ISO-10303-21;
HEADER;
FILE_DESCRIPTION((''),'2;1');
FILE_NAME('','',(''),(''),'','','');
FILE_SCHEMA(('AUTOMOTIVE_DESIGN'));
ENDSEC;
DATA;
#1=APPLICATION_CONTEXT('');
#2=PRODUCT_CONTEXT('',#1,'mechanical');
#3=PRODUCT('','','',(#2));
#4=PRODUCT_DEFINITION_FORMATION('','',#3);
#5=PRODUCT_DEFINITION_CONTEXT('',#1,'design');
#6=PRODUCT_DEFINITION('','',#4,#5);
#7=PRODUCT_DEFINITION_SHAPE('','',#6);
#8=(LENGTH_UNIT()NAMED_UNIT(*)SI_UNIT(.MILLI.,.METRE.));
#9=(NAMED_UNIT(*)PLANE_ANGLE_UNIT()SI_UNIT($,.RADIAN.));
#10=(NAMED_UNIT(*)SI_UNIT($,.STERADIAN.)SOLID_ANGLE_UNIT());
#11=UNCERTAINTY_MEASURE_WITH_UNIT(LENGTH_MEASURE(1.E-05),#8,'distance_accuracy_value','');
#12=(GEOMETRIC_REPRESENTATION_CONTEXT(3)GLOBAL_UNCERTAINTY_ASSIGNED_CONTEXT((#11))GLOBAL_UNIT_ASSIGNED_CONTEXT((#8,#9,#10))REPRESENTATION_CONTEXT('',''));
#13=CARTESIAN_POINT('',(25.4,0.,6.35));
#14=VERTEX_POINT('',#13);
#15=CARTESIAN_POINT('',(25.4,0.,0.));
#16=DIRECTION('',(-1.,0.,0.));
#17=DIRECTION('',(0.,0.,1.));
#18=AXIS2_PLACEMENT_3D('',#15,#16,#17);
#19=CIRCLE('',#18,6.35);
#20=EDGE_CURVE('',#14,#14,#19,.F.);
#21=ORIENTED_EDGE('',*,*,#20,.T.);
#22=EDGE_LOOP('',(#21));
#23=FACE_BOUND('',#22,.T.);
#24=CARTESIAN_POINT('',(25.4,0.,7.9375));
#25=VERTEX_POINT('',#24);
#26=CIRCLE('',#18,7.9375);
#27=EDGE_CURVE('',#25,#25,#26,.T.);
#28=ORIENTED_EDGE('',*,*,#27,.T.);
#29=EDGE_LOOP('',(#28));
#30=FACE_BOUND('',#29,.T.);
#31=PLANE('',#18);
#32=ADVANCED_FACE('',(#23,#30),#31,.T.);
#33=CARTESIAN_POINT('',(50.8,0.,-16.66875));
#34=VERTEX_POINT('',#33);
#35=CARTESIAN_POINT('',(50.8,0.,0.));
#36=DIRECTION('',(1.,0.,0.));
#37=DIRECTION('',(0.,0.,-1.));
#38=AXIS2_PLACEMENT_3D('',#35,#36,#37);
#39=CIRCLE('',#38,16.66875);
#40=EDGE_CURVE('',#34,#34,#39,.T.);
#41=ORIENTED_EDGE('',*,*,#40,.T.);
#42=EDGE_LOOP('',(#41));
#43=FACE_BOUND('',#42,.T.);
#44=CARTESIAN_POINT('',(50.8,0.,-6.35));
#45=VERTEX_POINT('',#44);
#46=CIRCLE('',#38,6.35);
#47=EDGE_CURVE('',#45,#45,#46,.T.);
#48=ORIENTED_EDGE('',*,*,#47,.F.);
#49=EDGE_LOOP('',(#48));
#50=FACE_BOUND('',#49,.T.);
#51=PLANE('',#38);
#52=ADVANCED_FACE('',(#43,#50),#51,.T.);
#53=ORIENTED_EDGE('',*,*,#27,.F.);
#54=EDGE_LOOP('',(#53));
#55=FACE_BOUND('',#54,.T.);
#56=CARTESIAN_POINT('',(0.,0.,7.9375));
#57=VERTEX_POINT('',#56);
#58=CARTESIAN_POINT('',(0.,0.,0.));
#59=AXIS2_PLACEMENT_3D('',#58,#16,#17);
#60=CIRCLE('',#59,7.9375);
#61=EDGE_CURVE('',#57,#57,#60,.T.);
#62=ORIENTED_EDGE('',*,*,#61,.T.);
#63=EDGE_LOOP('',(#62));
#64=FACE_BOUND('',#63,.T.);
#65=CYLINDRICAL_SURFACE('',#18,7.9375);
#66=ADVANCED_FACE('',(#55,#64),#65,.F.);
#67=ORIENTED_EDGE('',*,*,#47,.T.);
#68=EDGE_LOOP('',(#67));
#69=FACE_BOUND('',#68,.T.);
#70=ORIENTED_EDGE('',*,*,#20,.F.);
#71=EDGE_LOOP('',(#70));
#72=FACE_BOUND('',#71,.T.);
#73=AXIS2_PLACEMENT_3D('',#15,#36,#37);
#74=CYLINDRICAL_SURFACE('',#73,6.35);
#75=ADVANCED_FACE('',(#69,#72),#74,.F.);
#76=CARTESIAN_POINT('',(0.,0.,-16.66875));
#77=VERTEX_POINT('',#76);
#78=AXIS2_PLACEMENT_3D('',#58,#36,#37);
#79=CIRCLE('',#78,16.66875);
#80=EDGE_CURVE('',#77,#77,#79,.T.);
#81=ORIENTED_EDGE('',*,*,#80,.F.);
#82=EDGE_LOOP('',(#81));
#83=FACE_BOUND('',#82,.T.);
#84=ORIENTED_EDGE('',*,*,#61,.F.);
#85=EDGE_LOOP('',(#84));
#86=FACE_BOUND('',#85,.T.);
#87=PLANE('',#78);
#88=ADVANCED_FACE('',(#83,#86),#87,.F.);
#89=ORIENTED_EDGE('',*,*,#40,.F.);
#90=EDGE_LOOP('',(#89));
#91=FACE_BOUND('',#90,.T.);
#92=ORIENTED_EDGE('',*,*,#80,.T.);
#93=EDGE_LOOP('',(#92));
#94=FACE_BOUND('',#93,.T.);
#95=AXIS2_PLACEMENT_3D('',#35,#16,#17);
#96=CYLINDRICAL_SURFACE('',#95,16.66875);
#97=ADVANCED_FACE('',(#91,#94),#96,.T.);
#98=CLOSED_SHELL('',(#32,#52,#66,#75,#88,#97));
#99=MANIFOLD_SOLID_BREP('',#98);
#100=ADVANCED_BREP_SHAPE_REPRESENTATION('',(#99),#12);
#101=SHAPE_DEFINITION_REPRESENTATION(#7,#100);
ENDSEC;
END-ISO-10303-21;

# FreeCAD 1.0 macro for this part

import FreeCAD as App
import Part
import Sketcher

V = App.Vector
Q = App.Units.Quantity

doc = App.newDocument("Part")
body = doc.addObject("PartDesign::Body", "Body")

sketch1 = doc.addObject("Sketcher::SketchObject", "Sketch")
body.addObject(sketch1)
sketch1.AttachmentSupport = (doc.YZ_Plane, [""])
sketch1.MapMode = "FlatFace"
sketch1.addGeometry(Part.Circle(V(0, 0, 0), V(0, 0, 1), 16.66875), False)
sketch1.addConstraint(Sketcher.Constraint("Coincident", 0, 3, -1, 1))
sketch1.addConstraint(Sketcher.Constraint("Diameter", 0, Q("1.3125 in")))
pad1 = doc.addObject("PartDesign::Pad", "Pad")
body.addObject(pad1)
pad1.Profile = sketch1
pad1.Length = Q("2 in")

sketch2 = doc.addObject("Sketcher::SketchObject", "Sketch001")
body.addObject(sketch2)
sketch2.AttachmentSupport = (doc.YZ_Plane, [""])
sketch2.MapMode = "FlatFace"
sketch2.AttachmentOffset = App.Placement(V(0, 0, 2 * 25.4), App.Rotation())
sketch2.addGeometry(Part.Circle(V(0, 0, 0), V(0, 0, 1), 6.35), False)
sketch2.addConstraint(Sketcher.Constraint("Coincident", 0, 3, -1, 1))
sketch2.addConstraint(Sketcher.Constraint("Diameter", 0, Q("0.5 in")))
pocket1 = doc.addObject("PartDesign::Pocket", "Pocket")
body.addObject(pocket1)
pocket1.Profile = sketch2
pocket1.Length = Q("1 in")

sketch3 = doc.addObject("Sketcher::SketchObject", "Sketch002")
body.addObject(sketch3)
sketch3.AttachmentSupport = (doc.YZ_Plane, [""])
sketch3.MapMode = "FlatFace"
sketch3.addGeometry(Part.Circle(V(0, 0, 0), V(0, 0, 1), 7.9375), False)
sketch3.addConstraint(Sketcher.Constraint("Coincident", 0, 3, -1, 1))
sketch3.addConstraint(Sketcher.Constraint("Diameter", 0, Q("0.625 in")))
pocket2 = doc.addObject("PartDesign::Pocket", "Pocket001")
body.addObject(pocket2)
pocket2.Profile = sketch3
pocket2.Length = Q("1 in")
pocket2.Reversed = True

doc.recompute()
